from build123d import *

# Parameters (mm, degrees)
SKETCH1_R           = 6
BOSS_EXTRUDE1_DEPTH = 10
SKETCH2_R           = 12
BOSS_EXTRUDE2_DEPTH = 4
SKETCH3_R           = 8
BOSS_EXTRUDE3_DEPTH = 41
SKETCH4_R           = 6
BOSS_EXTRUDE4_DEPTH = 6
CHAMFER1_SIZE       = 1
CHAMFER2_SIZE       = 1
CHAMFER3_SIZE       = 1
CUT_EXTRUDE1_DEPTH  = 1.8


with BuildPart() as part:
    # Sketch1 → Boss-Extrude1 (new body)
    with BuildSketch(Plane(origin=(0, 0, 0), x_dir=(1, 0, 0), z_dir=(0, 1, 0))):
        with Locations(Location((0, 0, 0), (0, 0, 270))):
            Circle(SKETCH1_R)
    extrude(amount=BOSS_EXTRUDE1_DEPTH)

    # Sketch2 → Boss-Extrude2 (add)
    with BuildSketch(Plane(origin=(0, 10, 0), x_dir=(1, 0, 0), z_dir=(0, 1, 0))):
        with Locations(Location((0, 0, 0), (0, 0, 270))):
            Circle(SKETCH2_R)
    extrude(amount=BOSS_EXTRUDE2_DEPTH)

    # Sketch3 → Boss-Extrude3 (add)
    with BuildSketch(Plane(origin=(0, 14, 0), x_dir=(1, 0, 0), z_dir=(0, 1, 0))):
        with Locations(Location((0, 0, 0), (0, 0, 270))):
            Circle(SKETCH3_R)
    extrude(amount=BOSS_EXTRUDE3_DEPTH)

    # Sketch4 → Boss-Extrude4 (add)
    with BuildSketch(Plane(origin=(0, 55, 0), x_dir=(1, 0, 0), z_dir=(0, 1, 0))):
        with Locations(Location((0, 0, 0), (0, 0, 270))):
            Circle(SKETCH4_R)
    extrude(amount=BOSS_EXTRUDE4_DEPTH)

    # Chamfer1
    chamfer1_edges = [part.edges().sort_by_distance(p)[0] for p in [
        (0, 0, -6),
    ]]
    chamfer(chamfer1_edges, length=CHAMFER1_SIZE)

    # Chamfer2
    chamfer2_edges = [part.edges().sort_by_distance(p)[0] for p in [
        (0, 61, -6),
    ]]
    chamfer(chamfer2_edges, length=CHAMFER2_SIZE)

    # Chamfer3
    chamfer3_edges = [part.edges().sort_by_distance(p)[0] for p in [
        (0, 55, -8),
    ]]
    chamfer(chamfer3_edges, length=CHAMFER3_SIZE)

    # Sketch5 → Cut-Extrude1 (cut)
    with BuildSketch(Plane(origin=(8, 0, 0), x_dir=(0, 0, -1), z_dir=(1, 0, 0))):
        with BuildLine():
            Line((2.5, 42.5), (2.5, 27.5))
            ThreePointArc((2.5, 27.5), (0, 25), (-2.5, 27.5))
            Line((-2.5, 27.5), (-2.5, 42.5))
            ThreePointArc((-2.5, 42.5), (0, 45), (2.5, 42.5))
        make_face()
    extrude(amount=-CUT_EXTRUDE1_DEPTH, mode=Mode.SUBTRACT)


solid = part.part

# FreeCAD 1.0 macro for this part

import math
import FreeCAD as App
import Part
import Sketcher
Q = App.Units.Quantity


def edges_at(feature, points):
    """Names of the edges that pass closest to the given points."""
    edges = feature.Shape.Edges
    near = lambda p: min(range(len(edges)), key=lambda i: edges[i].distToShape(Part.Vertex(*p))[0])
    return sorted({f"Edge{near(p) + 1}" for p in points})

doc = App.newDocument("Part")
body = doc.addObject("PartDesign::Body", "Body")

sketch1 = doc.addObject("Sketcher::SketchObject", "Sketch")
body.addObject(sketch1)
sketch1.AttachmentSupport = (doc.XZ_Plane, [""])
sketch1.MapMode = "FlatFace"
sketch1.addGeometry(Part.Circle(App.Vector(0, 0, 0), App.Vector(0, 0, 1), 6), False)
sketch1.addConstraint([
    Sketcher.Constraint("Coincident", 0, 3, -1, 1),
    Sketcher.Constraint("Diameter", 0, Q("12 mm")),
])
pad1 = doc.addObject("PartDesign::Pad", "Pad")
body.addObject(pad1)
pad1.Profile = sketch1
pad1.Length = 10
pad1.Reversed = True

sketch2 = doc.addObject("Sketcher::SketchObject", "Sketch001")
body.addObject(sketch2)
sketch2.AttachmentSupport = (doc.XZ_Plane, [""])
sketch2.MapMode = "FlatFace"
sketch2.AttachmentOffset = App.Placement(App.Vector(0, 0, -10), App.Rotation())
sketch2.addGeometry(Part.Circle(App.Vector(0, 0, 0), App.Vector(0, 0, 1), 12), False)
sketch2.addConstraint([
    Sketcher.Constraint("Coincident", 0, 3, -1, 1),
    Sketcher.Constraint("Diameter", 0, Q("24 mm")),
])
pad2 = doc.addObject("PartDesign::Pad", "Pad001")
body.addObject(pad2)
pad2.Profile = sketch2
pad2.Length = 4
pad2.Reversed = True

sketch3 = doc.addObject("Sketcher::SketchObject", "Sketch002")
body.addObject(sketch3)
sketch3.AttachmentSupport = (doc.XZ_Plane, [""])
sketch3.MapMode = "FlatFace"
sketch3.AttachmentOffset = App.Placement(App.Vector(0, 0, -14), App.Rotation())
sketch3.addGeometry(Part.Circle(App.Vector(0, 0, 0), App.Vector(0, 0, 1), 8), False)
sketch3.addConstraint([
    Sketcher.Constraint("Coincident", 0, 3, -1, 1),
    Sketcher.Constraint("Diameter", 0, Q("16 mm")),
])
pad3 = doc.addObject("PartDesign::Pad", "Pad002")
body.addObject(pad3)
pad3.Profile = sketch3
pad3.Length = 41
pad3.Reversed = True

sketch4 = doc.addObject("Sketcher::SketchObject", "Sketch003")
body.addObject(sketch4)
sketch4.AttachmentSupport = (doc.XZ_Plane, [""])
sketch4.MapMode = "FlatFace"
sketch4.AttachmentOffset = App.Placement(App.Vector(0, 0, -55), App.Rotation())
sketch4.addGeometry(Part.Circle(App.Vector(0, 0, 0), App.Vector(0, 0, 1), 6), False)
sketch4.addConstraint([
    Sketcher.Constraint("Coincident", 0, 3, -1, 1),
    Sketcher.Constraint("Diameter", 0, Q("12 mm")),
])
pad4 = doc.addObject("PartDesign::Pad", "Pad003")
body.addObject(pad4)
pad4.Profile = sketch4
pad4.Length = 6
pad4.Reversed = True
doc.recompute()

chamfer = doc.addObject("PartDesign::Chamfer", "Chamfer")
body.addObject(chamfer)
chamfer.Base = (pad4, edges_at(pad4, [(0, 0, -6)]))
chamfer.Size = 1
doc.recompute()

chamfer2 = doc.addObject("PartDesign::Chamfer", "Chamfer001")
body.addObject(chamfer2)
chamfer2.Base = (chamfer, edges_at(chamfer, [(0, 61, -6)]))
chamfer2.Size = 1
doc.recompute()

chamfer3 = doc.addObject("PartDesign::Chamfer", "Chamfer002")
body.addObject(chamfer3)
chamfer3.Base = (chamfer2, edges_at(chamfer2, [(0, 55, -8)]))
chamfer3.Size = 1

sketch5 = doc.addObject("Sketcher::SketchObject", "Sketch004")
body.addObject(sketch5)
sketch5.AttachmentSupport = (doc.YZ_Plane, [""])
sketch5.MapMode = "FlatFace"
sketch5.AttachmentOffset = App.Placement(App.Vector(0, 0, 8), App.Rotation())
sketch5.addGeometry([
    Part.LineSegment(App.Vector(27.5, -2.5, 0), App.Vector(42.5, -2.5, 0)),
    Part.ArcOfCircle(Part.Circle(App.Vector(42.5, 0, 0), App.Vector(0, 0, 1), 2.5), math.radians(-90), math.radians(90)),
    Part.LineSegment(App.Vector(42.5, 2.5, 0), App.Vector(27.5, 2.5, 0)),
    Part.ArcOfCircle(Part.Circle(App.Vector(27.5, 0, 0), App.Vector(0, 0, 1), 2.5), math.radians(90), math.radians(270)),
], False)
sketch5.addConstraint([
    Sketcher.Constraint("Tangent", 0, 2, 1, 1),
    Sketcher.Constraint("Tangent", 1, 2, 2, 1),
    Sketcher.Constraint("Tangent", 2, 2, 3, 1),
    Sketcher.Constraint("Tangent", 3, 2, 0, 1),
    Sketcher.Constraint("Horizontal", 0),
    Sketcher.Constraint("Horizontal", 2),
    Sketcher.Constraint("PointOnObject", 1, 3, -1),
    Sketcher.Constraint("Radius", 1, Q("2.5 mm")),
    Sketcher.Constraint("DistanceX", 0, 1, 0, 2, Q("15 mm")),
    Sketcher.Constraint("DistanceX", -1, 1, 1, 3, Q("42.5 mm")),
])
pocket1 = doc.addObject("PartDesign::Pocket", "Pocket")
body.addObject(pocket1)
pocket1.Profile = sketch5
pocket1.Length = 1.8

doc.recompute()
